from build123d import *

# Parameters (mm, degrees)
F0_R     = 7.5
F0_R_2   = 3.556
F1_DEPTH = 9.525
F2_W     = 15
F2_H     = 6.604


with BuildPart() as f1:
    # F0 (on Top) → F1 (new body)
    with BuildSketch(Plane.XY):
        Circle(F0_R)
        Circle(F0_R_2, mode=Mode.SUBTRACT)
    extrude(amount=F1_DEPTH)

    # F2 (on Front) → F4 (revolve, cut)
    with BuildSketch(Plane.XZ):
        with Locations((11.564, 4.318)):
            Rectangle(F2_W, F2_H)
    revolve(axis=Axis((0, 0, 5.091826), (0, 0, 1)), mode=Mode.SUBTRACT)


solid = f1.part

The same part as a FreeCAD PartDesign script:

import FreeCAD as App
import Part
import Sketcher

V = App.Vector
Q = App.Units.Quantity


def add_polygon(sketch, points):
    """Adds a closed chain of lines whose ends are joined by coincident constraints."""
    first, n = sketch.GeometryCount, len(points)
    for a, b in zip(points, points[1:] + points[:1]):
        sketch.addGeometry(Part.LineSegment(App.Vector(*a, 0), App.Vector(*b, 0)), False)
    for i in range(n):
        sketch.addConstraint(Sketcher.Constraint("Coincident", first + i, 2, first + (i + 1) % n, 1))

doc = App.newDocument("Part")
body = doc.addObject("PartDesign::Body", "Body")

sketch1 = body.newObject("Sketcher::SketchObject", "Sketch")
sketch1.AttachmentSupport = (doc.getObject("XY_Plane"), [""])
sketch1.MapMode = "FlatFace"
sketch1.addGeometry([
    Part.Circle(V(0, 0, 0), V(0, 0, 1), 7.5),
    Part.Circle(V(0, 0, 0), V(0, 0, 1), 3.556),
], False)
sketch1.addConstraint([
    Sketcher.Constraint("Coincident", 0, 3, -1, 1),
    Sketcher.Constraint("Coincident", 1, 3, -1, 1),
    Sketcher.Constraint("Diameter", 1, Q("0.28 in")),
    Sketcher.Constraint("Diameter", 0, 15.0),
])
pad1 = body.newObject("PartDesign::Pad", "Pad")
pad1.Profile = sketch1
pad1.Length = Q("0.375 in")

sketch2 = body.newObject("Sketcher::SketchObject", "Sketch001")
sketch2.AttachmentSupport = (doc.getObject("XZ_Plane"), [""])
sketch2.MapMode = "FlatFace"
add_polygon(sketch2, [(4.064, 7.62), (4.064, 1.016), (19.064, 1.016), (19.064, 7.62)])
sketch2.addConstraint([
    Sketcher.Constraint("Vertical", 0),
    Sketcher.Constraint("Horizontal", 1),
    Sketcher.Constraint("Vertical", 2),
    Sketcher.Constraint("Horizontal", 3),
    Sketcher.Constraint("DistanceY", 0, 2, 0, 1, Q("0.26 in")),
    Sketcher.Constraint("DistanceY", -1, 1, 2, 2, Q("0.3 in")),
    Sketcher.Constraint("DistanceX", -1, 1, 0, 2, Q("0.16 in")),
    Sketcher.Constraint("DistanceX", 1, 1, 1, 2, 15.0),
])
groove = body.newObject("PartDesign::Groove", "Groove")
groove.Profile = sketch2
groove.ReferenceAxis = (sketch2, ["V_Axis"])
groove.Angle = 360

doc.recompute()
